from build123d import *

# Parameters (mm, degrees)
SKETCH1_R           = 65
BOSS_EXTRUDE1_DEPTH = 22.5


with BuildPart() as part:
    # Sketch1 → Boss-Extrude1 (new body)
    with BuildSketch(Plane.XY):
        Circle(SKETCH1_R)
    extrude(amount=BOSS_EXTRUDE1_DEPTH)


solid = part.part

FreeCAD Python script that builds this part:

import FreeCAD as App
import Part
import Sketcher

V = App.Vector
Q = App.Units.Quantity

doc = App.newDocument("Part")
params = doc.addObject("Spreadsheet::Sheet", "Params")
for row, (alias, value) in enumerate([
    ("sketch1_diameter", "130 mm"),
    ("pad1_length", "22.5 mm"),
], start=1):
    params.set(f"A{row}", alias)
    params.set(f"B{row}", "=" + value)
    params.setAlias(f"B{row}", alias)

body = doc.addObject("PartDesign::Body", "Body")

sketch1 = body.newObject("Sketcher::SketchObject", "Sketch")
sketch1.AttachmentSupport = (doc.getObject("XY_Plane"), [""])
sketch1.MapMode = "FlatFace"
sketch1.addGeometry(Part.Circle(V(0, 0, 0), V(0, 0, 1), 65), False)
sketch1.addConstraint([
    Sketcher.Constraint("Coincident", 0, 3, -1, 1),
    Sketcher.Constraint("Diameter", 0, Q("130 mm")),
])
sketch1.setExpression("Constraints[1]", "Params.sketch1_diameter")
pad1 = body.newObject("PartDesign::Pad", "Pad")
pad1.Profile = sketch1
pad1.setExpression("Length", "Params.pad1_length")

doc.recompute()
